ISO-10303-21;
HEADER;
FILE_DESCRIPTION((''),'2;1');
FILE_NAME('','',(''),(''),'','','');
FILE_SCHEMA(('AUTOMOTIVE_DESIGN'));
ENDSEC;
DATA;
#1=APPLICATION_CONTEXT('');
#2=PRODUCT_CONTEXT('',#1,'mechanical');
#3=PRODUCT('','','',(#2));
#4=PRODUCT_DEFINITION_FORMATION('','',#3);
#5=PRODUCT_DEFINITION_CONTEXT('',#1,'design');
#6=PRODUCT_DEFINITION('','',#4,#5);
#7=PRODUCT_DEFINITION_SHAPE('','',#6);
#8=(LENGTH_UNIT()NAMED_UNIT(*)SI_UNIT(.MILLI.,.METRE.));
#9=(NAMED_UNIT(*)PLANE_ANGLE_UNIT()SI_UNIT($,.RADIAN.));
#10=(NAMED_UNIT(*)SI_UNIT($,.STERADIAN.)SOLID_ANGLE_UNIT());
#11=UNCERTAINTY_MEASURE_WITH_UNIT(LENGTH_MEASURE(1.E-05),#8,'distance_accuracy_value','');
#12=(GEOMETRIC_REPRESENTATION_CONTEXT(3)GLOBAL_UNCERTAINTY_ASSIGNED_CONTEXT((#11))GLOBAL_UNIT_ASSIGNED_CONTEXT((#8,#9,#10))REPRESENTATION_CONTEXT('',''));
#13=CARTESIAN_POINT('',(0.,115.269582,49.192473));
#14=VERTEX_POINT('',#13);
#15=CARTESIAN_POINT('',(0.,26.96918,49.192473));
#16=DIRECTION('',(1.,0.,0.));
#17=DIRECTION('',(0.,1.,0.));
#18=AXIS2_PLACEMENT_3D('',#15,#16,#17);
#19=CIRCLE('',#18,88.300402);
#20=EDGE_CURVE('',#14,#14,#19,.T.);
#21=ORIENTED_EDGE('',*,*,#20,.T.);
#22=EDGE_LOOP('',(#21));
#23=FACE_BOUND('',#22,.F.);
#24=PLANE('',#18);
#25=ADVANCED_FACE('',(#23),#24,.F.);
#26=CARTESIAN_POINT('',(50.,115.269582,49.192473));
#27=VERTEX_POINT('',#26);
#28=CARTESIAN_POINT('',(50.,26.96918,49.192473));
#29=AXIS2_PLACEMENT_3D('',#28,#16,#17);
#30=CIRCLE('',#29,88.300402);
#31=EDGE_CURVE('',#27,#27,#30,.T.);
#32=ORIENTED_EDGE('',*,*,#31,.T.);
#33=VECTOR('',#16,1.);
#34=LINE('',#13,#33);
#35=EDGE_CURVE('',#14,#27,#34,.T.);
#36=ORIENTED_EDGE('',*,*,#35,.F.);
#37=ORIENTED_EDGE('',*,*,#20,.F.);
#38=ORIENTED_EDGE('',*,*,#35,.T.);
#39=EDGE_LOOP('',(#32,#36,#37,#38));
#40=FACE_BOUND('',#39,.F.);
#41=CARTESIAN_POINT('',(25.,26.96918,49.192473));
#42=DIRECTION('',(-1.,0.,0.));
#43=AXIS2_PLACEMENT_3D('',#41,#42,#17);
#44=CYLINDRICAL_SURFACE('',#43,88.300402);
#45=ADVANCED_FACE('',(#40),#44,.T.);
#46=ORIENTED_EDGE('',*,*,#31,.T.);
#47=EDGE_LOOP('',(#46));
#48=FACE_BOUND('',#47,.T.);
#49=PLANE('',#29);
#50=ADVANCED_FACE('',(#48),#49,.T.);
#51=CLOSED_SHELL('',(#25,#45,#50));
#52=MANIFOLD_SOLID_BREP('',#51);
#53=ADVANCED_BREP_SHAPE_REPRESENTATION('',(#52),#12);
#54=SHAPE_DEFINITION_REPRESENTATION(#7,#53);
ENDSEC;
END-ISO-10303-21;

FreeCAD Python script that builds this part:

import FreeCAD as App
import Part
import Sketcher
from FreeCAD import Vector

doc = App.newDocument("Part")
params = doc.addObject("Spreadsheet::Sheet", "Params")
for row, (alias, value) in enumerate([
    ("pad1_length", "25 mm"),
    ("pad2_length", "25 mm"),
], start=1):
    params.set(f"A{row}", alias)
    params.set(f"B{row}", "=" + value)
    params.setAlias(f"B{row}", alias)

body = doc.addObject("PartDesign::Body", "Body")

sketch1 = body.newObject("Sketcher::SketchObject", "Sketch")
sketch1.AttachmentSupport = (doc.getObject("YZ_Plane"), [""])
sketch1.MapMode = "FlatFace"
sketch1.addGeometry(Part.Circle(Vector(27, 49, 0), Vector(0, 0, 1), 88), False)
sketch1.addConstraint([
    Sketcher.Constraint("Diameter", 0, 176.600804),
    Sketcher.Constraint("DistanceX", -1, 1, 0, 3, 26.96918),
    Sketcher.Constraint("DistanceY", -1, 1, 0, 3, 49.192473),
])
pad1 = body.newObject("PartDesign::Pad", "Pad")
pad1.Profile = sketch1
pad1.setExpression("Length", "Params.pad1_length")

sketch2 = body.newObject("Sketcher::SketchObject", "Sketch001")
sketch2.AttachmentSupport = (doc.getObject("YZ_Plane"), [""])
sketch2.MapMode = "FlatFace"
sketch2.AttachmentOffset = App.Placement(Vector(0, 0, 25), App.Rotation())
sketch2.addGeometry(Part.Circle(Vector(27, 49, 0), Vector(0, 0, 1), 88), False)
sketch2.addConstraint([
    Sketcher.Constraint("Diameter", 0, 176.600804),
    Sketcher.Constraint("DistanceX", -1, 1, 0, 3, 26.96918),
    Sketcher.Constraint("DistanceY", -1, 1, 0, 3, 49.192473),
])
pad2 = body.newObject("PartDesign::Pad", "Pad001")
pad2.Profile = sketch2
pad2.setExpression("Length", "Params.pad2_length")

doc.recompute()
